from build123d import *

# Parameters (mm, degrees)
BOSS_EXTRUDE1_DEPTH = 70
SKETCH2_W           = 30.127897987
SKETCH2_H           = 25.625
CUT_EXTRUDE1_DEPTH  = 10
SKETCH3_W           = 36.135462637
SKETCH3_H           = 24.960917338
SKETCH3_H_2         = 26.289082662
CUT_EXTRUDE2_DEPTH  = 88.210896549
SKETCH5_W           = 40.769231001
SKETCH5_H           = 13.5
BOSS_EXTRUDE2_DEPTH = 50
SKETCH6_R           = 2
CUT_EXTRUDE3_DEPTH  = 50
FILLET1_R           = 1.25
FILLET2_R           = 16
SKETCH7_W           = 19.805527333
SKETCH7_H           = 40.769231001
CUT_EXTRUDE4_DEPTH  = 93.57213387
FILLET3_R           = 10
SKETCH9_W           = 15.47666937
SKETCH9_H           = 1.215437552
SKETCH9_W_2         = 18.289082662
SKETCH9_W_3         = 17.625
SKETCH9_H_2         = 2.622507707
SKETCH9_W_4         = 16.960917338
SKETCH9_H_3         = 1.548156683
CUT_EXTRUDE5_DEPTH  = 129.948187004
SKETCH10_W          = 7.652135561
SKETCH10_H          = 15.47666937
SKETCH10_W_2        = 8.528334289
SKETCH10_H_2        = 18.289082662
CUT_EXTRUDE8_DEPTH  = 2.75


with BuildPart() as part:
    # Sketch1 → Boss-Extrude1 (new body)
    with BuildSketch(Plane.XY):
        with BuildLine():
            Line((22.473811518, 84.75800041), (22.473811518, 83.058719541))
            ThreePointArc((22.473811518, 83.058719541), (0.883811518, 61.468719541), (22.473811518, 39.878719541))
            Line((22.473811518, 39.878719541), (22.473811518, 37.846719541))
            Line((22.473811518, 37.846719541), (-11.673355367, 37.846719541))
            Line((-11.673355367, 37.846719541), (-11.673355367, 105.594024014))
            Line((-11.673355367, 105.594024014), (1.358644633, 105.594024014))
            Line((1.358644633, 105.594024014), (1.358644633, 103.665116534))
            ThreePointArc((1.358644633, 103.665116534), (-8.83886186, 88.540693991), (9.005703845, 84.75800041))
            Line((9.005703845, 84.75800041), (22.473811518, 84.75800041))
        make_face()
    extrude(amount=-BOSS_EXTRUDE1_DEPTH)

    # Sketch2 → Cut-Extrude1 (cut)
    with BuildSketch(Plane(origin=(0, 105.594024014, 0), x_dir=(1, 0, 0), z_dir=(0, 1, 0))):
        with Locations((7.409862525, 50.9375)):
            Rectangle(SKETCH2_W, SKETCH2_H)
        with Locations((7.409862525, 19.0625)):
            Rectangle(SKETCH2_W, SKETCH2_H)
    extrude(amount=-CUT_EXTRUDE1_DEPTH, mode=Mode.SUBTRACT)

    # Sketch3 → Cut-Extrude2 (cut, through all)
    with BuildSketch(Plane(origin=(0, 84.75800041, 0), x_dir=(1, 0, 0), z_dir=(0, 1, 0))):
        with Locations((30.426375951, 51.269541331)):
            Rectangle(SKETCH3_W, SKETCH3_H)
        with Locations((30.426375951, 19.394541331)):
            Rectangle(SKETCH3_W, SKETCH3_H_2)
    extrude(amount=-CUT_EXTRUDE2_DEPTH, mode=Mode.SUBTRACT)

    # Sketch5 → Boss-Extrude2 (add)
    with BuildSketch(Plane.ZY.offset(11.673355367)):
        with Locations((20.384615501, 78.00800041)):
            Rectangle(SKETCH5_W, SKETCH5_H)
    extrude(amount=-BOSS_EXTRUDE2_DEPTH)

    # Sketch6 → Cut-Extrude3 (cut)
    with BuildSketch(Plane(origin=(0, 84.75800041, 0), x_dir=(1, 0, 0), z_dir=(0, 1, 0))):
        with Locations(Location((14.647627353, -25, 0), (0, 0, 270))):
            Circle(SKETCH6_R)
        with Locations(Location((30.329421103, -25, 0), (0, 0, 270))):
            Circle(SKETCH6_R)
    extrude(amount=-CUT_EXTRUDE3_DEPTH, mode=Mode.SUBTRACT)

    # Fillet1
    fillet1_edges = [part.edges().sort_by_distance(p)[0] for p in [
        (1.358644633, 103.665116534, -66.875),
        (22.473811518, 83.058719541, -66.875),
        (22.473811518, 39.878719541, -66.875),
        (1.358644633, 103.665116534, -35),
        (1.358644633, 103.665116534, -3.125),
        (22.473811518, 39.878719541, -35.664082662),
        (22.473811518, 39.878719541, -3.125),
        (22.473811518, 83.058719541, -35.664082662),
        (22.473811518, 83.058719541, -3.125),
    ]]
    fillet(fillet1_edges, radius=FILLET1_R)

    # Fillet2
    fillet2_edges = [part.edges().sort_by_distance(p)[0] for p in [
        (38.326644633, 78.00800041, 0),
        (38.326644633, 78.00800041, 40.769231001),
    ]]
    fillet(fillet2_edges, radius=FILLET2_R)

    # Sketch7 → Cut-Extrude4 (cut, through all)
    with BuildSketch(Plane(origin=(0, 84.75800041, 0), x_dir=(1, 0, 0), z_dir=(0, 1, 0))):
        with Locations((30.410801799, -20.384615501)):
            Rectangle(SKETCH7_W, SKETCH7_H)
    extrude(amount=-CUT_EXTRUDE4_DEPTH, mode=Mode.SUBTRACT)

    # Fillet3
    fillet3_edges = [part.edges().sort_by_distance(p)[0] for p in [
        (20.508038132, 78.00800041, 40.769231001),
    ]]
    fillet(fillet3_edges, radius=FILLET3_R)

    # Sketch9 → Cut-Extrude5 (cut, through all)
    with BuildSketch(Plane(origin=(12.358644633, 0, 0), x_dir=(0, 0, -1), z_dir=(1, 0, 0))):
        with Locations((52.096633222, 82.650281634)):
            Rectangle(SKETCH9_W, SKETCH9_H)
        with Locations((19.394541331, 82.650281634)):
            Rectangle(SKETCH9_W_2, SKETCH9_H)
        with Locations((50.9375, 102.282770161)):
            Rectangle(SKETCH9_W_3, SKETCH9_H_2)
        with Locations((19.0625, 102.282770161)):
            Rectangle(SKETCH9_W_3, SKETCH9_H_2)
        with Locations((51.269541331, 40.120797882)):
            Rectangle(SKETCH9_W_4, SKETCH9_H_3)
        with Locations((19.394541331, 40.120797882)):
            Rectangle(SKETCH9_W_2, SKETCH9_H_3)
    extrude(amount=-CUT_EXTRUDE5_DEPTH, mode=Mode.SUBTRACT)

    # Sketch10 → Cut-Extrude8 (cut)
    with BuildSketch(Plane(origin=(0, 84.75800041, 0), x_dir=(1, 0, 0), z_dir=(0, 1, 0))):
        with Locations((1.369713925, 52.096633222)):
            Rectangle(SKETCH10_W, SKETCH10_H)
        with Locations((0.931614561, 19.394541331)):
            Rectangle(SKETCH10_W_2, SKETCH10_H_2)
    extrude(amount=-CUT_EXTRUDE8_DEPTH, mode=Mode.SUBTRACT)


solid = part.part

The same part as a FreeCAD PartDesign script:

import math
import FreeCAD as App
import Part
import Sketcher


def edges_at(feature, points):
    """Names of the edges that pass closest to the given points."""
    edges = feature.Shape.Edges
    near = lambda p: min(range(len(edges)), key=lambda i: edges[i].distToShape(Part.Vertex(*p))[0])
    return sorted({f"Edge{near(p) + 1}" for p in points})


def add_polygon(sketch, points):
    """Adds a closed chain of lines whose ends are joined by coincident constraints."""
    first, n = sketch.GeometryCount, len(points)
    for a, b in zip(points, points[1:] + points[:1]):
        sketch.addGeometry(Part.LineSegment(App.Vector(*a, 0), App.Vector(*b, 0)), False)
    for i in range(n):
        sketch.addConstraint(Sketcher.Constraint("Coincident", first + i, 2, first + (i + 1) % n, 1))

doc = App.newDocument("Part")
params = doc.addObject("Spreadsheet::Sheet", "Params")
for row, (alias, value) in enumerate([
    ("sketch1_radius", "11 mm"),
    ("sketch1_radius2", "21.59 mm"),
    ("pad1_length", "70 mm"),
    ("pocket1_length", "10 mm"),
    ("sketch4_width", "13.5 mm"),
    ("pad2_length", "50 mm"),
    ("sketch5_diameter", "4 mm"),
    ("pocket3_length", "50 mm"),
    ("fillet_radius", "1.25 mm"),
    ("fillet2_radius", "16 mm"),
    ("fillet3_radius", "10 mm"),
    ("pocket6_length", "2.75 mm"),
], start=1):
    params.set(f"A{row}", alias)
    params.set(f"B{row}", "=" + value)
    params.setAlias(f"B{row}", alias)

body = doc.addObject("PartDesign::Body", "Body")

# Sketch on XY plane
sketch1 = body.newObject("Sketcher::SketchObject", "Sketch")
sketch1.AttachmentSupport = (doc.getObject("XY_Plane"), [""])
sketch1.MapMode = "FlatFace"
sketch1.addGeometry(Part.LineSegment(App.Vector(22.5, 83.1, 0), App.Vector(22.5, 84.8, 0)), False)
sketch1.addGeometry(Part.LineSegment(App.Vector(22.5, 84.8, 0), App.Vector(9, 84.8, 0)), False)
sketch1.addGeometry(Part.ArcOfCircle(Part.Circle(App.Vector(1.4, 92.7, 0), App.Vector(0, 0, 1), 11), math.radians(90), math.radians(314)), False)
sketch1.addGeometry(Part.LineSegment(App.Vector(1.4, 103.7, 0), App.Vector(1.4, 105.6, 0)), False)
sketch1.addGeometry(Part.LineSegment(App.Vector(1.4, 105.6, 0), App.Vector(-11.7, 105.6, 0)), False)
sketch1.addGeometry(Part.LineSegment(App.Vector(-11.7, 105.6, 0), App.Vector(-11.7, 37.8, 0)), False)
sketch1.addGeometry(Part.LineSegment(App.Vector(-11.7, 37.8, 0), App.Vector(22.5, 37.8, 0)), False)
sketch1.addGeometry(Part.LineSegment(App.Vector(22.5, 37.8, 0), App.Vector(22.5, 39.9, 0)), False)
sketch1.addGeometry(Part.ArcOfCircle(Part.Circle(App.Vector(22.5, 61.5, 0), App.Vector(0, 0, 1), 21.6), math.radians(90), math.radians(270)), False)
sketch1.addConstraint(Sketcher.Constraint("Coincident", 0, 2, 1, 1))
sketch1.addConstraint(Sketcher.Constraint("Coincident", 1, 2, 2, 2))
sketch1.addConstraint(Sketcher.Constraint("Coincident", 2, 1, 3, 1))
sketch1.addConstraint(Sketcher.Constraint("Coincident", 3, 2, 4, 1))
sketch1.addConstraint(Sketcher.Constraint("Coincident", 4, 2, 5, 1))
sketch1.addConstraint(Sketcher.Constraint("Coincident", 5, 2, 6, 1))
sketch1.addConstraint(Sketcher.Constraint("Coincident", 6, 2, 7, 1))
sketch1.addConstraint(Sketcher.Constraint("Coincident", 7, 2, 8, 2))
sketch1.addConstraint(Sketcher.Constraint("Coincident", 8, 1, 0, 1))
sketch1.addConstraint(Sketcher.Constraint("Vertical", 0))
sketch1.addConstraint(Sketcher.Constraint("Horizontal", 1))
sketch1.addConstraint(Sketcher.Constraint("Vertical", 3))
sketch1.addConstraint(Sketcher.Constraint("Horizontal", 4))
sketch1.addConstraint(Sketcher.Constraint("Vertical", 5))
sketch1.addConstraint(Sketcher.Constraint("Horizontal", 6))
sketch1.addConstraint(Sketcher.Constraint("Vertical", 7))
sketch1.addConstraint(Sketcher.Constraint("Vertical", 8, 3, 0, 2))
sketch1.addConstraint(Sketcher.Constraint("Vertical", 0, 2, 6, 2))
sketch1.addConstraint(Sketcher.Constraint("Radius", 2, 11.0))
sketch1.addConstraint(Sketcher.Constraint("Radius", 8, 21.59))
sketch1.addConstraint(Sketcher.Constraint("DistanceX", 4, 2, 4, 1, 13.032))
sketch1.addConstraint(Sketcher.Constraint("DistanceY", 7, 1, 7, 2, 2.032))
sketch1.addConstraint(Sketcher.Constraint("DistanceY", -1, 1, 0, 2, 84.758))
sketch1.addConstraint(Sketcher.Constraint("DistanceX", 4, 2, 2, 3, 13.032))
sketch1.addConstraint(Sketcher.Constraint("DistanceY", 0, 1, 0, 2, 1.699281))
sketch1.addConstraint(Sketcher.Constraint("DistanceX", 1, 2, 1, 1, 13.468108))
sketch1.addConstraint(Sketcher.Constraint("DistanceX", 6, 1, 6, 2, 34.147167))
sketch1.addConstraint(Sketcher.Constraint("DistanceY", 3, 1, 3, 2, 1.928907))
sketch1.addConstraint(Sketcher.Constraint("DistanceX", -1, 1, 8, 3, 22.473812))
sketch1.setExpression("Constraints[18]", "Params.sketch1_radius")
sketch1.setExpression("Constraints[19]", "Params.sketch1_radius2")
pad1 = body.newObject("PartDesign::Pad", "Pad")
pad1.Profile = sketch1
pad1.setExpression("Length", "Params.pad1_length")
pad1.Reversed = True

# Sketch on XZ plane
sketch2 = body.newObject("Sketcher::SketchObject", "Sketch001")
sketch2.AttachmentSupport = (doc.getObject("XZ_Plane"), [""])
sketch2.MapMode = "FlatFace"
sketch2.AttachmentOffset = App.Placement(App.Vector(0, 0, -105.594024), App.Rotation())
add_polygon(sketch2, [(-8, -64), (-8, -38), (22, -38), (22, -64)])  # lines 0-3
add_polygon(sketch2, [(-8, -32), (-8, -6), (22, -6), (22, -32)])  # lines 4-7
sketch2.addConstraint(Sketcher.Constraint("Vertical", 0))
sketch2.addConstraint(Sketcher.Constraint("Horizontal", 1))
sketch2.addConstraint(Sketcher.Constraint("Vertical", 2))
sketch2.addConstraint(Sketcher.Constraint("Horizontal", 3))
sketch2.addConstraint(Sketcher.Constraint("Vertical", 4))
sketch2.addConstraint(Sketcher.Constraint("Horizontal", 5))
sketch2.addConstraint(Sketcher.Constraint("Vertical", 6))
sketch2.addConstraint(Sketcher.Constraint("Horizontal", 7))
sketch2.addConstraint(Sketcher.Constraint("Vertical", 3, 2, 4, 2))
sketch2.addConstraint(Sketcher.Constraint("Vertical", 2, 2, 5, 2))
sketch2.addConstraint(Sketcher.Constraint("Equal", 2, 4))
sketch2.addConstraint(Sketcher.Constraint("DistanceY", 3, 2, 4, 2, 57.5))
sketch2.addConstraint(Sketcher.Constraint("DistanceY", 0, 1, 0, 2, 25.625))
sketch2.addConstraint(Sketcher.Constraint("DistanceY", 2, 2, -1, 1, 63.75))
sketch2.addConstraint(Sketcher.Constraint("DistanceX", 1, 1, 1, 2, 30.127898))
sketch2.addConstraint(Sketcher.Constraint("DistanceX", -1, 1, 1, 2, 22.473812))
pocket1 = body.newObject("PartDesign::Pocket", "Pocket")
pocket1.Profile = sketch2
pocket1.setExpression("Length", "Params.pocket1_length")
pocket1.Reversed = True

# Sketch on XZ plane
sketch3 = body.newObject("Sketcher::SketchObject", "Sketch002")
sketch3.AttachmentSupport = (doc.getObject("XZ_Plane"), [""])
sketch3.MapMode = "FlatFace"
sketch3.AttachmentOffset = App.Placement(App.Vector(0, 0, -84.758), App.Rotation())
add_polygon(sketch3, [(12, -64), (12, -39), (48, -39), (48, -64)])  # lines 0-3
add_polygon(sketch3, [(12, -33), (12, -6), (48, -6), (48, -33)])  # lines 4-7
sketch3.addConstraint(Sketcher.Constraint("Vertical", 0))
sketch3.addConstraint(Sketcher.Constraint("Horizontal", 1))
sketch3.addConstraint(Sketcher.Constraint("Vertical", 2))
sketch3.addConstraint(Sketcher.Constraint("Horizontal", 3))
sketch3.addConstraint(Sketcher.Constraint("Vertical", 4))
sketch3.addConstraint(Sketcher.Constraint("Horizontal", 5))
sketch3.addConstraint(Sketcher.Constraint("Vertical", 6))
sketch3.addConstraint(Sketcher.Constraint("Horizontal", 7))
sketch3.addConstraint(Sketcher.Constraint("Vertical", 3, 2, 4, 2))
sketch3.addConstraint(Sketcher.Constraint("Vertical", 2, 2, 5, 2))
sketch3.addConstraint(Sketcher.Constraint("DistanceY", 3, 2, 4, 2, 57.5))
sketch3.addConstraint(Sketcher.Constraint("DistanceY", 2, 2, -1, 1, 63.75))
sketch3.addConstraint(Sketcher.Constraint("DistanceY", 1, 2, 6, 2, 6.25))
sketch3.addConstraint(Sketcher.Constraint("DistanceX", 1, 1, 1, 2, 36.135463))
sketch3.addConstraint(Sketcher.Constraint("DistanceY", 0, 1, 0, 2, 24.960917))
sketch3.addConstraint(Sketcher.Constraint("DistanceX", -1, 1, 0, 2, 12.358645))
pocket2 = body.newObject("PartDesign::Pocket", "Pocket001")
pocket2.Profile = sketch3
pocket2.Type = "ThroughAll"
pocket2.Reversed = True

# Sketch on YZ plane
sketch4 = body.newObject("Sketcher::SketchObject", "Sketch003")
sketch4.AttachmentSupport = (doc.getObject("YZ_Plane"), [""])
sketch4.MapMode = "FlatFace"
sketch4.AttachmentOffset = App.Placement(App.Vector(0, 0, -11.673355), App.Rotation())
add_polygon(sketch4, [(85, 0), (71, 0), (71, 41), (85, 41)])  # lines 0-3
sketch4.addConstraint(Sketcher.Constraint("Horizontal", 0))
sketch4.addConstraint(Sketcher.Constraint("Vertical", 1))
sketch4.addConstraint(Sketcher.Constraint("Horizontal", 2))
sketch4.addConstraint(Sketcher.Constraint("Vertical", 3))
sketch4.addConstraint(Sketcher.Constraint("PointOnObject", 0, 2, -1))
sketch4.addConstraint(Sketcher.Constraint("DistanceX", 0, 2, 0, 1, 13.5))
sketch4.addConstraint(Sketcher.Constraint("DistanceX", -1, 1, 0, 2, 71.258))
sketch4.addConstraint(Sketcher.Constraint("DistanceY", 1, 1, 1, 2, 40.769231))
sketch4.setExpression("Constraints[9]", "Params.sketch4_width")
pad2 = body.newObject("PartDesign::Pad", "Pad001")
pad2.Profile = sketch4
pad2.setExpression("Length", "Params.pad2_length")

# Sketch on XZ plane
sketch5 = body.newObject("Sketcher::SketchObject", "Sketch004")
sketch5.AttachmentSupport = (doc.getObject("XZ_Plane"), [""])
sketch5.MapMode = "FlatFace"
sketch5.AttachmentOffset = App.Placement(App.Vector(0, 0, -84.758), App.Rotation())
sketch5.addGeometry(Part.Circle(App.Vector(14.6, 25, 0), App.Vector(0, 0, 1), 2), False)
sketch5.addGeometry(Part.Circle(App.Vector(30.3, 25, 0), App.Vector(0, 0, 1), 2), False)
sketch5.addConstraint(Sketcher.Constraint("Equal", 0, 1))
sketch5.addConstraint(Sketcher.Constraint("Horizontal", 0, 3, 1, 3))
sketch5.addConstraint(Sketcher.Constraint("Diameter", 0, 4.0))
sketch5.addConstraint(Sketcher.Constraint("DistanceY", -1, 1, 0, 3, 25.0))
sketch5.addConstraint(Sketcher.Constraint("DistanceX", -1, 1, 1, 3, 30.329421))
sketch5.addConstraint(Sketcher.Constraint("DistanceX", -1, 1, 0, 3, 14.647627))
sketch5.setExpression("Constraints[2]", "Params.sketch5_diameter")
pocket3 = body.newObject("PartDesign::Pocket", "Pocket002")
pocket3.Profile = sketch5
pocket3.setExpression("Length", "Params.pocket3_length")
pocket3.Reversed = True
doc.recompute()

fillet = body.newObject("PartDesign::Fillet", "Fillet")
fillet.Base = (pocket3, edges_at(pocket3, [
    (1.359, 103.665, -66.875),
    (22.474, 83.059, -66.875),
    (22.474, 39.879, -66.875),
    (1.359, 103.665, -35),
    (1.359, 103.665, -3.125),
    (22.474, 39.879, -35.664),
    (22.474, 39.879, -3.125),
    (22.474, 83.059, -35.664),
    (22.474, 83.059, -3.125),
]))
fillet.setExpression("Radius", "Params.fillet_radius")
doc.recompute()

fillet2 = body.newObject("PartDesign::Fillet", "Fillet001")
fillet2.Base = (fillet, edges_at(fillet, [(38.327, 78.008, 0), (38.327, 78.008, 40.769)]))
fillet2.setExpression("Radius", "Params.fillet2_radius")

# Sketch on XZ plane
sketch6 = body.newObject("Sketcher::SketchObject", "Sketch005")
sketch6.AttachmentSupport = (doc.getObject("XZ_Plane"), [""])
sketch6.MapMode = "FlatFace"
sketch6.AttachmentOffset = App.Placement(App.Vector(0, 0, -84.758), App.Rotation())
add_polygon(sketch6, [(21, 0), (21, 41), (40, 41), (40, 0)])  # lines 0-3
sketch6.addConstraint(Sketcher.Constraint("Vertical", 0))
sketch6.addConstraint(Sketcher.Constraint("Horizontal", 1))
sketch6.addConstraint(Sketcher.Constraint("Vertical", 2))
sketch6.addConstraint(Sketcher.Constraint("Horizontal", 3))
sketch6.addConstraint(Sketcher.Constraint("PointOnObject", 2, 2, -1))
sketch6.addConstraint(Sketcher.Constraint("DistanceY", 0, 1, 0, 2, 40.769231))
sketch6.addConstraint(Sketcher.Constraint("DistanceX", 1, 1, 1, 2, 19.805527))
sketch6.addConstraint(Sketcher.Constraint("DistanceX", -1, 1, 0, 2, 20.508038))
pocket4 = body.newObject("PartDesign::Pocket", "Pocket003")
pocket4.Profile = sketch6
pocket4.Type = "ThroughAll"
pocket4.Reversed = True
doc.recompute()

fillet3 = body.newObject("PartDesign::Fillet", "Fillet002")
fillet3.Base = (pocket4, edges_at(pocket4, [(20.508, 78.008, 40.769)]))
fillet3.setExpression("Radius", "Params.fillet3_radius")

# Sketch on YZ plane
sketch7 = body.newObject("Sketcher::SketchObject", "Sketch006")
sketch7.AttachmentSupport = (doc.getObject("YZ_Plane"), [""])
sketch7.MapMode = "FlatFace"
sketch7.AttachmentOffset = App.Placement(App.Vector(0, 0, 12.358645), App.Rotation())
add_polygon(sketch7, [(83.3, -44.4), (82, -44.4), (82, -59.8), (83.3, -59.8)])  # lines 0-3
add_polygon(sketch7, [(83.3, -10.2), (82, -10.2), (82, -28.5), (83.3, -28.5)])  # lines 4-7
add_polygon(sketch7, [(103.6, -42.1), (101, -42.1), (101, -59.8), (103.6, -59.8)])  # lines 8-11
add_polygon(sketch7, [(103.6, -10.2), (101, -10.2), (101, -27.9), (103.6, -27.9)])  # lines 12-15
add_polygon(sketch7, [(40.9, -42.8), (39.3, -42.8), (39.3, -59.8), (40.9, -59.8)])  # lines 16-19
add_polygon(sketch7, [(40.9, -10.2), (39.3, -10.2), (39.3, -28.5), (40.9, -28.5)])  # lines 20-23
sketch7.addConstraint(Sketcher.Constraint("Horizontal", 0))
sketch7.addConstraint(Sketcher.Constraint("Vertical", 1))
sketch7.addConstraint(Sketcher.Constraint("Horizontal", 2))
sketch7.addConstraint(Sketcher.Constraint("Vertical", 3))
sketch7.addConstraint(Sketcher.Constraint("Horizontal", 4))
sketch7.addConstraint(Sketcher.Constraint("Vertical", 5))
sketch7.addConstraint(Sketcher.Constraint("Horizontal", 6))
sketch7.addConstraint(Sketcher.Constraint("Vertical", 7))
sketch7.addConstraint(Sketcher.Constraint("Horizontal", 8))
sketch7.addConstraint(Sketcher.Constraint("Vertical", 9))
sketch7.addConstraint(Sketcher.Constraint("Horizontal", 10))
sketch7.addConstraint(Sketcher.Constraint("Vertical", 11))
sketch7.addConstraint(Sketcher.Constraint("Horizontal", 12))
sketch7.addConstraint(Sketcher.Constraint("Vertical", 13))
sketch7.addConstraint(Sketcher.Constraint("Horizontal", 14))
sketch7.addConstraint(Sketcher.Constraint("Vertical", 15))
sketch7.addConstraint(Sketcher.Constraint("Horizontal", 16))
sketch7.addConstraint(Sketcher.Constraint("Vertical", 17))
sketch7.addConstraint(Sketcher.Constraint("Horizontal", 18))
sketch7.addConstraint(Sketcher.Constraint("Vertical", 19))
sketch7.addConstraint(Sketcher.Constraint("Horizontal", 20))
sketch7.addConstraint(Sketcher.Constraint("Vertical", 21))
sketch7.addConstraint(Sketcher.Constraint("Horizontal", 22))
sketch7.addConstraint(Sketcher.Constraint("Vertical", 23))
sketch7.addConstraint(Sketcher.Constraint("Horizontal", 7, 2, 12, 2))
sketch7.addConstraint(Sketcher.Constraint("Horizontal", 10, 2, 17, 2))
sketch7.addConstraint(Sketcher.Constraint("Horizontal", 15, 2, 20, 2))
sketch7.addConstraint(Sketcher.Constraint("Horizontal", 6, 2, 21, 2))
sketch7.addConstraint(Sketcher.Constraint("Vertical", 1, 2, 4, 2))
sketch7.addConstraint(Sketcher.Constraint("Vertical", 3, 2, 6, 2))
sketch7.addConstraint(Sketcher.Constraint("Vertical", 9, 2, 12, 2))
sketch7.addConstraint(Sketcher.Constraint("Vertical", 11, 2, 14, 2))
sketch7.addConstraint(Sketcher.Constraint("Vertical", 17, 2, 20, 2))
sketch7.addConstraint(Sketcher.Constraint("Vertical", 19, 2, 22, 2))
sketch7.addConstraint(Sketcher.Constraint("Equal", 11, 13))
sketch7.addConstraint(Sketcher.Constraint("DistanceY", 9, 2, 9, 1, 17.625))
sketch7.addConstraint(Sketcher.Constraint("DistanceY", 4, 2, -1, 1, 10.25))
sketch7.addConstraint(Sketcher.Constraint("DistanceY", 9, 2, -1, 1, 59.75))
sketch7.addConstraint(Sketcher.Constraint("DistanceY", 16, 2, 5, 2, 14.25))
sketch7.addConstraint(Sketcher.Constraint("DistanceX", -1, 1, 2, 2, 83.258))
sketch7.addConstraint(Sketcher.Constraint("DistanceY", 1, 2, 1, 1, 15.476669))
sketch7.addConstraint(Sketcher.Constraint("DistanceY", 0, 2, -1, 1, 44.358299))
sketch7.addConstraint(Sketcher.Constraint("DistanceX", 0, 2, 0, 1, 1.215438))
sketch7.addConstraint(Sketcher.Constraint("DistanceX", 8, 2, 8, 1, 2.622508))
sketch7.addConstraint(Sketcher.Constraint("DistanceX", 16, 2, 16, 1, 1.548157))
sketch7.addConstraint(Sketcher.Constraint("DistanceY", 5, 2, 5, 1, 18.289083))
sketch7.addConstraint(Sketcher.Constraint("DistanceX", -1, 1, 16, 2, 39.34672))
sketch7.addConstraint(Sketcher.Constraint("DistanceX", 1, 2, 10, 2, 21.551461))
pocket5 = body.newObject("PartDesign::Pocket", "Pocket004")
pocket5.Profile = sketch7
pocket5.Type = "ThroughAll"

# Sketch on XZ plane
sketch8 = body.newObject("Sketcher::SketchObject", "Sketch007")
sketch8.AttachmentSupport = (doc.getObject("XZ_Plane"), [""])
sketch8.MapMode = "FlatFace"
sketch8.AttachmentOffset = App.Placement(App.Vector(0, 0, -84.758), App.Rotation())
add_polygon(sketch8, [(-2, -60), (-2, -44), (5, -44), (5, -60)])  # lines 0-3
add_polygon(sketch8, [(-3, -29), (-3, -10), (5, -10), (5, -29)])  # lines 4-7
sketch8.addConstraint(Sketcher.Constraint("Vertical", 0))
sketch8.addConstraint(Sketcher.Constraint("Horizontal", 1))
sketch8.addConstraint(Sketcher.Constraint("Vertical", 2))
sketch8.addConstraint(Sketcher.Constraint("Horizontal", 3))
sketch8.addConstraint(Sketcher.Constraint("Vertical", 4))
sketch8.addConstraint(Sketcher.Constraint("Horizontal", 5))
sketch8.addConstraint(Sketcher.Constraint("Vertical", 6))
sketch8.addConstraint(Sketcher.Constraint("Horizontal", 7))
sketch8.addConstraint(Sketcher.Constraint("Vertical", 2, 2, 5, 2))
sketch8.addConstraint(Sketcher.Constraint("DistanceY", 4, 2, -1, 1, 10.25))
sketch8.addConstraint(Sketcher.Constraint("DistanceY", 0, 1, 0, 2, 15.476669))
sketch8.addConstraint(Sketcher.Constraint("DistanceY", 0, 2, -1, 1, 44.358299))
sketch8.addConstraint(Sketcher.Constraint("DistanceX", 4, 2, 0, 2, 0.876199))
sketch8.addConstraint(Sketcher.Constraint("DistanceX", 1, 1, 1, 2, 7.652136))
sketch8.addConstraint(Sketcher.Constraint("DistanceY", 4, 1, 4, 2, 18.289083))
sketch8.addConstraint(Sketcher.Constraint("DistanceX", -1, 1, 1, 2, 5.195782))
pocket6 = body.newObject("PartDesign::Pocket", "Pocket005")
pocket6.Profile = sketch8
pocket6.setExpression("Length", "Params.pocket6_length")
pocket6.Reversed = True

doc.recompute()
